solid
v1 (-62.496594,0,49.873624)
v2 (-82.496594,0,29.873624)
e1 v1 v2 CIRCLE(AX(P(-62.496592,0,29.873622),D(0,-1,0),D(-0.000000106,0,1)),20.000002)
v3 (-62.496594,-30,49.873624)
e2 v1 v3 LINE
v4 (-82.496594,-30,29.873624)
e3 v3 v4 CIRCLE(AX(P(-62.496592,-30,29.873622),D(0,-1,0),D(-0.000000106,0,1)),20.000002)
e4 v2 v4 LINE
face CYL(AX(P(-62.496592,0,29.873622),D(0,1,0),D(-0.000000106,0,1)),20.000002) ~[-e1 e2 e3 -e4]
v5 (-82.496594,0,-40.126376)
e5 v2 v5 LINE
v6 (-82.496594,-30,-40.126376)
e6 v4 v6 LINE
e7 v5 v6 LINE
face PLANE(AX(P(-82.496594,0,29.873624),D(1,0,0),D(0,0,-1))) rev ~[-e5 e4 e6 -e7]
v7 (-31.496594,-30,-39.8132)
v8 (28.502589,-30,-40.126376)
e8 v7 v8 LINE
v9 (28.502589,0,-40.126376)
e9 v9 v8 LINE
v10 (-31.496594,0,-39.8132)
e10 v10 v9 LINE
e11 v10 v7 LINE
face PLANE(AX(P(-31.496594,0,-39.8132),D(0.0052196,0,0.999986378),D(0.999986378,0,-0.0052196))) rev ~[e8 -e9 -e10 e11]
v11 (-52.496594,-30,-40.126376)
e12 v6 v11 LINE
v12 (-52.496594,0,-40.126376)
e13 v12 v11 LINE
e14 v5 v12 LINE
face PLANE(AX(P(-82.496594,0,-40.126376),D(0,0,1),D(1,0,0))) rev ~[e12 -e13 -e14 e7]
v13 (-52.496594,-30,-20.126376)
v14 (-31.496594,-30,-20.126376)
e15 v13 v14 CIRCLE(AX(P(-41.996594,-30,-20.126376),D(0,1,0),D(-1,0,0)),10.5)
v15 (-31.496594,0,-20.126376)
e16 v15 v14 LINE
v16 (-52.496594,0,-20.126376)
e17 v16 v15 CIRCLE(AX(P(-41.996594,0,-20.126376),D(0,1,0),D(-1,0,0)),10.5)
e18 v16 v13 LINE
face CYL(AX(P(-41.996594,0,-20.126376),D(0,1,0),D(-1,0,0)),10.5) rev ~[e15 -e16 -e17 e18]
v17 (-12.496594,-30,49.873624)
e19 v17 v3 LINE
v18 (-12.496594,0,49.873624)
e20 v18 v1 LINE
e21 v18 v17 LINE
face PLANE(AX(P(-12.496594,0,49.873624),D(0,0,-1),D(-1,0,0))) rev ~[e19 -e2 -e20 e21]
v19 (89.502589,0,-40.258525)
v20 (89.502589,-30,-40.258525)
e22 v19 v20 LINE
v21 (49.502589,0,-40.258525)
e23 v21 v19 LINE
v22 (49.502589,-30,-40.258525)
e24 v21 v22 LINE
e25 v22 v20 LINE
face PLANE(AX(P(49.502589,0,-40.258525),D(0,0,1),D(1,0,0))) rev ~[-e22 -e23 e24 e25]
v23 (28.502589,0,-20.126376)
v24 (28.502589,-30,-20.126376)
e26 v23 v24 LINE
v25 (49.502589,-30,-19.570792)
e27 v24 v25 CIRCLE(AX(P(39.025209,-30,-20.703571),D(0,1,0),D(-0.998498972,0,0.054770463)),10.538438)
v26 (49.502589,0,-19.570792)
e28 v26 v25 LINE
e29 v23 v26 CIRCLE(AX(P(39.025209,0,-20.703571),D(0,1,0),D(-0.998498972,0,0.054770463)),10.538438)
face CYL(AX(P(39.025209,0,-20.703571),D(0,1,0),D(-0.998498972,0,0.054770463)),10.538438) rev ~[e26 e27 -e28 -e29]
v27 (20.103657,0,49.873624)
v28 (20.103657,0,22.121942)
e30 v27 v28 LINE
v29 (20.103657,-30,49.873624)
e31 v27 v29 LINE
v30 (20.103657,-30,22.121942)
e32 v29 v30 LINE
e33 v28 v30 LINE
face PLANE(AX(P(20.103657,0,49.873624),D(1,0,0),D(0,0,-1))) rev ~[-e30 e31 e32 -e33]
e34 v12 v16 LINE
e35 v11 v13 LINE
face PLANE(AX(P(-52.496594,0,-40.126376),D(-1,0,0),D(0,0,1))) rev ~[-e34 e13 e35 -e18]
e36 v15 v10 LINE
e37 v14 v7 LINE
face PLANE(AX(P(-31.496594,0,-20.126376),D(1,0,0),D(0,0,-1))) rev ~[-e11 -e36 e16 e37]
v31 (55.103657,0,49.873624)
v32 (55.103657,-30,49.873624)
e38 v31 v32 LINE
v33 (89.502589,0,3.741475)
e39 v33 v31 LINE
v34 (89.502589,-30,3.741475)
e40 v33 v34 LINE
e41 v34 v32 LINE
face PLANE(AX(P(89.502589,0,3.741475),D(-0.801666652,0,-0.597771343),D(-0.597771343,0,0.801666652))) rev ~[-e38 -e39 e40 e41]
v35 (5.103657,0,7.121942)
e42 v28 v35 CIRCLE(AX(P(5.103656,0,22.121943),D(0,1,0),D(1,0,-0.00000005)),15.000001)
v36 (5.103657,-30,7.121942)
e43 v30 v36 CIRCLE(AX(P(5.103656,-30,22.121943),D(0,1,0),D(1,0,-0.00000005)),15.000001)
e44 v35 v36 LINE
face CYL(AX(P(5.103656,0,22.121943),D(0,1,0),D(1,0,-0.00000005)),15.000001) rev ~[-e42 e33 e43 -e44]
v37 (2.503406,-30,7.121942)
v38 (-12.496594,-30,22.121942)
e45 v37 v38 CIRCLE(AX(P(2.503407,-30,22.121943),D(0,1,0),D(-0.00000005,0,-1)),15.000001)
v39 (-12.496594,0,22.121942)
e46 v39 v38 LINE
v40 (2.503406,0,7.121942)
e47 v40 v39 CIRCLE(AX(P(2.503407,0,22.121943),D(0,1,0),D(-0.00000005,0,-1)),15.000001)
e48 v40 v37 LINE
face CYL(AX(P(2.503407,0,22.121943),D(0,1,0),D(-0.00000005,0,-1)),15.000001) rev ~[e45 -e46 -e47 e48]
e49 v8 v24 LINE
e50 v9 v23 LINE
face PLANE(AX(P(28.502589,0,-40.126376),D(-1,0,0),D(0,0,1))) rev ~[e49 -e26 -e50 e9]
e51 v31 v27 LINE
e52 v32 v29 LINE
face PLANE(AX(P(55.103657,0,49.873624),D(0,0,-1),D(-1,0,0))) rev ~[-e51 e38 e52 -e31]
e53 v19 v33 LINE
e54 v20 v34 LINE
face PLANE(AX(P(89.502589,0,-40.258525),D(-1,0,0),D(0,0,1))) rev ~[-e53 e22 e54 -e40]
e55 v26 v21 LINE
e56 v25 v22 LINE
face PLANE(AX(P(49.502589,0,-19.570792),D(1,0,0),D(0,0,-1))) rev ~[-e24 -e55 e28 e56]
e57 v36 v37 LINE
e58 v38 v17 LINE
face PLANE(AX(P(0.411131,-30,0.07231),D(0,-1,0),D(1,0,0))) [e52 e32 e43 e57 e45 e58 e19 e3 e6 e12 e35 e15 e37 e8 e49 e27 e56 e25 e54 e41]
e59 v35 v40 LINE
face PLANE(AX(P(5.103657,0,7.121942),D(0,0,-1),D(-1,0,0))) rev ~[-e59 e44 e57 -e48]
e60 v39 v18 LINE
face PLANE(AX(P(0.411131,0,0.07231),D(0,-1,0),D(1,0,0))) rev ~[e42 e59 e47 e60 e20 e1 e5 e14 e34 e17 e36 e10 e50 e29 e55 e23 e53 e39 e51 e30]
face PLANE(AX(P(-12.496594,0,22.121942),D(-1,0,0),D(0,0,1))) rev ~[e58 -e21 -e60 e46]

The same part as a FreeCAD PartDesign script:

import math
import FreeCAD as App
import Part
import Sketcher
from FreeCAD import Vector
Q = App.Units.Quantity

doc = App.newDocument("Part")
body = doc.addObject("PartDesign::Body", "Body")

# Sketch on XZ plane
sketch1 = body.newObject("Sketcher::SketchObject", "Sketch")
sketch1.AttachmentSupport = (doc.getObject("XZ_Plane"), [""])
sketch1.MapMode = "FlatFace"
sketch1.addGeometry([
    Part.LineSegment(Vector(-52.496594, -40.126376, 0), Vector(-52.496594, -20.126376, 0)),  # 0
    Part.ArcOfCircle(Part.Circle(Vector(-41.996594, -20.126376, 0), Vector(0, 0, 1), 10.5), math.radians(0), math.radians(180)),  # 1
    Part.LineSegment(Vector(-31.496594, -20.126376, 0), Vector(-31.496594, -39.8132, 0)),  # 2
    Part.LineSegment(Vector(-31.496594, -39.8132, 0), Vector(28.502589, -40.126376, 0)),  # 3
    Part.LineSegment(Vector(28.502589, -40.126376, 0), Vector(28.502589, -20.126376, 0)),  # 4
    Part.ArcOfCircle(Part.Circle(Vector(39.025209, -20.703571, 0), Vector(0, 0, 1), 10.538438), math.radians(6.170658), math.radians(176.860313)),  # 5
    Part.LineSegment(Vector(49.502589, -19.570792, 0), Vector(49.502589, -40.258525, 0)),  # 6
    Part.LineSegment(Vector(49.502589, -40.258525, 0), Vector(89.502589, -40.258525, 0)),  # 7
    Part.LineSegment(Vector(89.502589, -40.258525, 0), Vector(89.502589, 3.741475, 0)),  # 8
    Part.LineSegment(Vector(89.502589, 3.741475, 0), Vector(55.103657, 49.873624, 0)),  # 9
    Part.LineSegment(Vector(55.103657, 49.873624, 0), Vector(20.103657, 49.873624, 0)),  # 10
    Part.LineSegment(Vector(20.103657, 49.873624, 0), Vector(20.103657, 22.121942, 0)),  # 11
    Part.ArcOfCircle(Part.Circle(Vector(5.103656, 22.121943, 0), Vector(0, 0, 1), 15.000001), math.radians(-89.999997), math.radians(-0.000003)),  # 12
    Part.LineSegment(Vector(5.103657, 7.121942, 0), Vector(2.503406, 7.121942, 0)),  # 13
    Part.ArcOfCircle(Part.Circle(Vector(2.503407, 22.121943, 0), Vector(0, 0, 1), 15.000001), math.radians(-179.999997), math.radians(-90.000003)),  # 14
    Part.LineSegment(Vector(-12.496594, 22.121942, 0), Vector(-12.496594, 49.873624, 0)),  # 15
    Part.LineSegment(Vector(-12.496594, 49.873624, 0), Vector(-62.496594, 49.873624, 0)),  # 16
    Part.ArcOfCircle(Part.Circle(Vector(-62.496592, 29.873622, 0), Vector(0, 0, 1), 20.000002), math.radians(90.000006), math.radians(179.999994)),  # 17
    Part.LineSegment(Vector(-82.496594, 29.873624, 0), Vector(-82.496594, -40.126376, 0)),  # 18
    Part.LineSegment(Vector(-82.496594, -40.126376, 0), Vector(-52.496594, -40.126376, 0)),  # 19
], False)
sketch1.addConstraint([
    Sketcher.Constraint("Coincident", 0, 2, 1, 2),
    Sketcher.Constraint("Coincident", 1, 1, 2, 1),
    Sketcher.Constraint("Coincident", 2, 2, 3, 1),
    Sketcher.Constraint("Coincident", 3, 2, 4, 1),
    Sketcher.Constraint("Coincident", 4, 2, 5, 2),
    Sketcher.Constraint("Coincident", 5, 1, 6, 1),
    Sketcher.Constraint("Coincident", 6, 2, 7, 1),
    Sketcher.Constraint("Coincident", 7, 2, 8, 1),
    Sketcher.Constraint("Coincident", 8, 2, 9, 1),
    Sketcher.Constraint("Coincident", 9, 2, 10, 1),
    Sketcher.Constraint("Coincident", 10, 2, 11, 1),
    Sketcher.Constraint("Coincident", 11, 2, 12, 2),
    Sketcher.Constraint("Coincident", 12, 1, 13, 1),
    Sketcher.Constraint("Coincident", 13, 2, 14, 2),
    Sketcher.Constraint("Coincident", 14, 1, 15, 1),
    Sketcher.Constraint("Coincident", 15, 2, 16, 1),
    Sketcher.Constraint("Coincident", 16, 2, 17, 1),
    Sketcher.Constraint("Coincident", 17, 2, 18, 1),
    Sketcher.Constraint("Coincident", 18, 2, 19, 1),
    Sketcher.Constraint("Coincident", 19, 2, 0, 1),
    Sketcher.Constraint("Vertical", 0),
    Sketcher.Constraint("Vertical", 2),
    Sketcher.Constraint("Vertical", 4),
    Sketcher.Constraint("Vertical", 6),
    Sketcher.Constraint("Horizontal", 7),
    Sketcher.Constraint("Vertical", 8),
    Sketcher.Constraint("Horizontal", 10),
    Sketcher.Constraint("Vertical", 11),
    Sketcher.Constraint("Horizontal", 13),
    Sketcher.Constraint("Vertical", 15),
    Sketcher.Constraint("Horizontal", 16),
    Sketcher.Constraint("Vertical", 18),
    Sketcher.Constraint("Horizontal", 19),
    Sketcher.Constraint("Radius", 12, Q("15.000001 mm")),
    Sketcher.Constraint("Radius", 14, Q("15.000001 mm")),
    Sketcher.Constraint("Radius", 1, Q("10.5 mm")),
    Sketcher.Constraint("DistanceX", 7, 1, 7, 2, Q("40 mm")),
    Sketcher.Constraint("DistanceX", 10, 2, 10, 1, Q("35 mm")),
    Sketcher.Constraint("DistanceX", 16, 2, 16, 1, Q("50 mm")),
    Sketcher.Constraint("DistanceX", 19, 1, 19, 2, Q("30 mm")),
    Sketcher.Constraint("DistanceY", 0, 1, 0, 2, Q("20 mm")),
    Sketcher.Constraint("DistanceY", 4, 1, 4, 2, Q("20 mm")),
    Sketcher.Constraint("DistanceY", 8, 1, 8, 2, Q("44 mm")),
    Sketcher.Constraint("DistanceY", 18, 2, 18, 1, Q("70 mm")),
    Sketcher.Constraint("Distance", 3, Q("60 mm")),
    Sketcher.Constraint("DistanceX", 17, 3, 14, 3, Q("64.999999 mm")),
    Sketcher.Constraint("DistanceX", 0, 2, 14, 3, Q("55.000001 mm")),
    Sketcher.Constraint("DistanceY", 3, 2, 1, 1, Q("20 mm")),
    Sketcher.Constraint("DistanceX", 4, 2, 5, 1, Q("21 mm")),
    Sketcher.Constraint("DistanceY", 4, 2, 10, 2, Q("70 mm")),
    Sketcher.Constraint("DistanceX", 12, 1, 11, 2, Q("15 mm")),
    Sketcher.Constraint("DistanceY", 12, 1, 11, 2, Q("15 mm")),
    Sketcher.Constraint("DistanceX", 14, 1, 13, 2, Q("15 mm")),
    Sketcher.Constraint("DistanceY", 13, 2, 14, 1, Q("15 mm")),
    Sketcher.Constraint("DistanceY", 0, 2, 16, 2, Q("70 mm")),
    Sketcher.Constraint("DistanceY", 1, 3, 17, 2, Q("50 mm")),
    Sketcher.Constraint("DistanceY", 18, 2, 1, 1, Q("20 mm")),
    Sketcher.Constraint("Radius", 5, Q("10.538438 mm")),
    Sketcher.Constraint("Distance", 9, Q("57.545301 mm")),
    Sketcher.Constraint("DistanceX", 13, 2, 13, 1, Q("2.600251 mm")),
    Sketcher.Constraint("DistanceY", 11, 2, 11, 1, Q("27.751682 mm")),
    Sketcher.Constraint("DistanceY", 2, 2, -1, 1, Q("39.8132 mm")),
    Sketcher.Constraint("DistanceX", 17, 3, 5, 3, Q("101.521801 mm")),
    Sketcher.Constraint("DistanceY", 2, 2, 2, 1, Q("19.686824 mm")),
    Sketcher.Constraint("DistanceX", -1, 1, 5, 3, Q("39.025209 mm")),
])
pad1 = body.newObject("PartDesign::Pad", "Pad")
pad1.Profile = sketch1
pad1.Length = 30

doc.recompute()
